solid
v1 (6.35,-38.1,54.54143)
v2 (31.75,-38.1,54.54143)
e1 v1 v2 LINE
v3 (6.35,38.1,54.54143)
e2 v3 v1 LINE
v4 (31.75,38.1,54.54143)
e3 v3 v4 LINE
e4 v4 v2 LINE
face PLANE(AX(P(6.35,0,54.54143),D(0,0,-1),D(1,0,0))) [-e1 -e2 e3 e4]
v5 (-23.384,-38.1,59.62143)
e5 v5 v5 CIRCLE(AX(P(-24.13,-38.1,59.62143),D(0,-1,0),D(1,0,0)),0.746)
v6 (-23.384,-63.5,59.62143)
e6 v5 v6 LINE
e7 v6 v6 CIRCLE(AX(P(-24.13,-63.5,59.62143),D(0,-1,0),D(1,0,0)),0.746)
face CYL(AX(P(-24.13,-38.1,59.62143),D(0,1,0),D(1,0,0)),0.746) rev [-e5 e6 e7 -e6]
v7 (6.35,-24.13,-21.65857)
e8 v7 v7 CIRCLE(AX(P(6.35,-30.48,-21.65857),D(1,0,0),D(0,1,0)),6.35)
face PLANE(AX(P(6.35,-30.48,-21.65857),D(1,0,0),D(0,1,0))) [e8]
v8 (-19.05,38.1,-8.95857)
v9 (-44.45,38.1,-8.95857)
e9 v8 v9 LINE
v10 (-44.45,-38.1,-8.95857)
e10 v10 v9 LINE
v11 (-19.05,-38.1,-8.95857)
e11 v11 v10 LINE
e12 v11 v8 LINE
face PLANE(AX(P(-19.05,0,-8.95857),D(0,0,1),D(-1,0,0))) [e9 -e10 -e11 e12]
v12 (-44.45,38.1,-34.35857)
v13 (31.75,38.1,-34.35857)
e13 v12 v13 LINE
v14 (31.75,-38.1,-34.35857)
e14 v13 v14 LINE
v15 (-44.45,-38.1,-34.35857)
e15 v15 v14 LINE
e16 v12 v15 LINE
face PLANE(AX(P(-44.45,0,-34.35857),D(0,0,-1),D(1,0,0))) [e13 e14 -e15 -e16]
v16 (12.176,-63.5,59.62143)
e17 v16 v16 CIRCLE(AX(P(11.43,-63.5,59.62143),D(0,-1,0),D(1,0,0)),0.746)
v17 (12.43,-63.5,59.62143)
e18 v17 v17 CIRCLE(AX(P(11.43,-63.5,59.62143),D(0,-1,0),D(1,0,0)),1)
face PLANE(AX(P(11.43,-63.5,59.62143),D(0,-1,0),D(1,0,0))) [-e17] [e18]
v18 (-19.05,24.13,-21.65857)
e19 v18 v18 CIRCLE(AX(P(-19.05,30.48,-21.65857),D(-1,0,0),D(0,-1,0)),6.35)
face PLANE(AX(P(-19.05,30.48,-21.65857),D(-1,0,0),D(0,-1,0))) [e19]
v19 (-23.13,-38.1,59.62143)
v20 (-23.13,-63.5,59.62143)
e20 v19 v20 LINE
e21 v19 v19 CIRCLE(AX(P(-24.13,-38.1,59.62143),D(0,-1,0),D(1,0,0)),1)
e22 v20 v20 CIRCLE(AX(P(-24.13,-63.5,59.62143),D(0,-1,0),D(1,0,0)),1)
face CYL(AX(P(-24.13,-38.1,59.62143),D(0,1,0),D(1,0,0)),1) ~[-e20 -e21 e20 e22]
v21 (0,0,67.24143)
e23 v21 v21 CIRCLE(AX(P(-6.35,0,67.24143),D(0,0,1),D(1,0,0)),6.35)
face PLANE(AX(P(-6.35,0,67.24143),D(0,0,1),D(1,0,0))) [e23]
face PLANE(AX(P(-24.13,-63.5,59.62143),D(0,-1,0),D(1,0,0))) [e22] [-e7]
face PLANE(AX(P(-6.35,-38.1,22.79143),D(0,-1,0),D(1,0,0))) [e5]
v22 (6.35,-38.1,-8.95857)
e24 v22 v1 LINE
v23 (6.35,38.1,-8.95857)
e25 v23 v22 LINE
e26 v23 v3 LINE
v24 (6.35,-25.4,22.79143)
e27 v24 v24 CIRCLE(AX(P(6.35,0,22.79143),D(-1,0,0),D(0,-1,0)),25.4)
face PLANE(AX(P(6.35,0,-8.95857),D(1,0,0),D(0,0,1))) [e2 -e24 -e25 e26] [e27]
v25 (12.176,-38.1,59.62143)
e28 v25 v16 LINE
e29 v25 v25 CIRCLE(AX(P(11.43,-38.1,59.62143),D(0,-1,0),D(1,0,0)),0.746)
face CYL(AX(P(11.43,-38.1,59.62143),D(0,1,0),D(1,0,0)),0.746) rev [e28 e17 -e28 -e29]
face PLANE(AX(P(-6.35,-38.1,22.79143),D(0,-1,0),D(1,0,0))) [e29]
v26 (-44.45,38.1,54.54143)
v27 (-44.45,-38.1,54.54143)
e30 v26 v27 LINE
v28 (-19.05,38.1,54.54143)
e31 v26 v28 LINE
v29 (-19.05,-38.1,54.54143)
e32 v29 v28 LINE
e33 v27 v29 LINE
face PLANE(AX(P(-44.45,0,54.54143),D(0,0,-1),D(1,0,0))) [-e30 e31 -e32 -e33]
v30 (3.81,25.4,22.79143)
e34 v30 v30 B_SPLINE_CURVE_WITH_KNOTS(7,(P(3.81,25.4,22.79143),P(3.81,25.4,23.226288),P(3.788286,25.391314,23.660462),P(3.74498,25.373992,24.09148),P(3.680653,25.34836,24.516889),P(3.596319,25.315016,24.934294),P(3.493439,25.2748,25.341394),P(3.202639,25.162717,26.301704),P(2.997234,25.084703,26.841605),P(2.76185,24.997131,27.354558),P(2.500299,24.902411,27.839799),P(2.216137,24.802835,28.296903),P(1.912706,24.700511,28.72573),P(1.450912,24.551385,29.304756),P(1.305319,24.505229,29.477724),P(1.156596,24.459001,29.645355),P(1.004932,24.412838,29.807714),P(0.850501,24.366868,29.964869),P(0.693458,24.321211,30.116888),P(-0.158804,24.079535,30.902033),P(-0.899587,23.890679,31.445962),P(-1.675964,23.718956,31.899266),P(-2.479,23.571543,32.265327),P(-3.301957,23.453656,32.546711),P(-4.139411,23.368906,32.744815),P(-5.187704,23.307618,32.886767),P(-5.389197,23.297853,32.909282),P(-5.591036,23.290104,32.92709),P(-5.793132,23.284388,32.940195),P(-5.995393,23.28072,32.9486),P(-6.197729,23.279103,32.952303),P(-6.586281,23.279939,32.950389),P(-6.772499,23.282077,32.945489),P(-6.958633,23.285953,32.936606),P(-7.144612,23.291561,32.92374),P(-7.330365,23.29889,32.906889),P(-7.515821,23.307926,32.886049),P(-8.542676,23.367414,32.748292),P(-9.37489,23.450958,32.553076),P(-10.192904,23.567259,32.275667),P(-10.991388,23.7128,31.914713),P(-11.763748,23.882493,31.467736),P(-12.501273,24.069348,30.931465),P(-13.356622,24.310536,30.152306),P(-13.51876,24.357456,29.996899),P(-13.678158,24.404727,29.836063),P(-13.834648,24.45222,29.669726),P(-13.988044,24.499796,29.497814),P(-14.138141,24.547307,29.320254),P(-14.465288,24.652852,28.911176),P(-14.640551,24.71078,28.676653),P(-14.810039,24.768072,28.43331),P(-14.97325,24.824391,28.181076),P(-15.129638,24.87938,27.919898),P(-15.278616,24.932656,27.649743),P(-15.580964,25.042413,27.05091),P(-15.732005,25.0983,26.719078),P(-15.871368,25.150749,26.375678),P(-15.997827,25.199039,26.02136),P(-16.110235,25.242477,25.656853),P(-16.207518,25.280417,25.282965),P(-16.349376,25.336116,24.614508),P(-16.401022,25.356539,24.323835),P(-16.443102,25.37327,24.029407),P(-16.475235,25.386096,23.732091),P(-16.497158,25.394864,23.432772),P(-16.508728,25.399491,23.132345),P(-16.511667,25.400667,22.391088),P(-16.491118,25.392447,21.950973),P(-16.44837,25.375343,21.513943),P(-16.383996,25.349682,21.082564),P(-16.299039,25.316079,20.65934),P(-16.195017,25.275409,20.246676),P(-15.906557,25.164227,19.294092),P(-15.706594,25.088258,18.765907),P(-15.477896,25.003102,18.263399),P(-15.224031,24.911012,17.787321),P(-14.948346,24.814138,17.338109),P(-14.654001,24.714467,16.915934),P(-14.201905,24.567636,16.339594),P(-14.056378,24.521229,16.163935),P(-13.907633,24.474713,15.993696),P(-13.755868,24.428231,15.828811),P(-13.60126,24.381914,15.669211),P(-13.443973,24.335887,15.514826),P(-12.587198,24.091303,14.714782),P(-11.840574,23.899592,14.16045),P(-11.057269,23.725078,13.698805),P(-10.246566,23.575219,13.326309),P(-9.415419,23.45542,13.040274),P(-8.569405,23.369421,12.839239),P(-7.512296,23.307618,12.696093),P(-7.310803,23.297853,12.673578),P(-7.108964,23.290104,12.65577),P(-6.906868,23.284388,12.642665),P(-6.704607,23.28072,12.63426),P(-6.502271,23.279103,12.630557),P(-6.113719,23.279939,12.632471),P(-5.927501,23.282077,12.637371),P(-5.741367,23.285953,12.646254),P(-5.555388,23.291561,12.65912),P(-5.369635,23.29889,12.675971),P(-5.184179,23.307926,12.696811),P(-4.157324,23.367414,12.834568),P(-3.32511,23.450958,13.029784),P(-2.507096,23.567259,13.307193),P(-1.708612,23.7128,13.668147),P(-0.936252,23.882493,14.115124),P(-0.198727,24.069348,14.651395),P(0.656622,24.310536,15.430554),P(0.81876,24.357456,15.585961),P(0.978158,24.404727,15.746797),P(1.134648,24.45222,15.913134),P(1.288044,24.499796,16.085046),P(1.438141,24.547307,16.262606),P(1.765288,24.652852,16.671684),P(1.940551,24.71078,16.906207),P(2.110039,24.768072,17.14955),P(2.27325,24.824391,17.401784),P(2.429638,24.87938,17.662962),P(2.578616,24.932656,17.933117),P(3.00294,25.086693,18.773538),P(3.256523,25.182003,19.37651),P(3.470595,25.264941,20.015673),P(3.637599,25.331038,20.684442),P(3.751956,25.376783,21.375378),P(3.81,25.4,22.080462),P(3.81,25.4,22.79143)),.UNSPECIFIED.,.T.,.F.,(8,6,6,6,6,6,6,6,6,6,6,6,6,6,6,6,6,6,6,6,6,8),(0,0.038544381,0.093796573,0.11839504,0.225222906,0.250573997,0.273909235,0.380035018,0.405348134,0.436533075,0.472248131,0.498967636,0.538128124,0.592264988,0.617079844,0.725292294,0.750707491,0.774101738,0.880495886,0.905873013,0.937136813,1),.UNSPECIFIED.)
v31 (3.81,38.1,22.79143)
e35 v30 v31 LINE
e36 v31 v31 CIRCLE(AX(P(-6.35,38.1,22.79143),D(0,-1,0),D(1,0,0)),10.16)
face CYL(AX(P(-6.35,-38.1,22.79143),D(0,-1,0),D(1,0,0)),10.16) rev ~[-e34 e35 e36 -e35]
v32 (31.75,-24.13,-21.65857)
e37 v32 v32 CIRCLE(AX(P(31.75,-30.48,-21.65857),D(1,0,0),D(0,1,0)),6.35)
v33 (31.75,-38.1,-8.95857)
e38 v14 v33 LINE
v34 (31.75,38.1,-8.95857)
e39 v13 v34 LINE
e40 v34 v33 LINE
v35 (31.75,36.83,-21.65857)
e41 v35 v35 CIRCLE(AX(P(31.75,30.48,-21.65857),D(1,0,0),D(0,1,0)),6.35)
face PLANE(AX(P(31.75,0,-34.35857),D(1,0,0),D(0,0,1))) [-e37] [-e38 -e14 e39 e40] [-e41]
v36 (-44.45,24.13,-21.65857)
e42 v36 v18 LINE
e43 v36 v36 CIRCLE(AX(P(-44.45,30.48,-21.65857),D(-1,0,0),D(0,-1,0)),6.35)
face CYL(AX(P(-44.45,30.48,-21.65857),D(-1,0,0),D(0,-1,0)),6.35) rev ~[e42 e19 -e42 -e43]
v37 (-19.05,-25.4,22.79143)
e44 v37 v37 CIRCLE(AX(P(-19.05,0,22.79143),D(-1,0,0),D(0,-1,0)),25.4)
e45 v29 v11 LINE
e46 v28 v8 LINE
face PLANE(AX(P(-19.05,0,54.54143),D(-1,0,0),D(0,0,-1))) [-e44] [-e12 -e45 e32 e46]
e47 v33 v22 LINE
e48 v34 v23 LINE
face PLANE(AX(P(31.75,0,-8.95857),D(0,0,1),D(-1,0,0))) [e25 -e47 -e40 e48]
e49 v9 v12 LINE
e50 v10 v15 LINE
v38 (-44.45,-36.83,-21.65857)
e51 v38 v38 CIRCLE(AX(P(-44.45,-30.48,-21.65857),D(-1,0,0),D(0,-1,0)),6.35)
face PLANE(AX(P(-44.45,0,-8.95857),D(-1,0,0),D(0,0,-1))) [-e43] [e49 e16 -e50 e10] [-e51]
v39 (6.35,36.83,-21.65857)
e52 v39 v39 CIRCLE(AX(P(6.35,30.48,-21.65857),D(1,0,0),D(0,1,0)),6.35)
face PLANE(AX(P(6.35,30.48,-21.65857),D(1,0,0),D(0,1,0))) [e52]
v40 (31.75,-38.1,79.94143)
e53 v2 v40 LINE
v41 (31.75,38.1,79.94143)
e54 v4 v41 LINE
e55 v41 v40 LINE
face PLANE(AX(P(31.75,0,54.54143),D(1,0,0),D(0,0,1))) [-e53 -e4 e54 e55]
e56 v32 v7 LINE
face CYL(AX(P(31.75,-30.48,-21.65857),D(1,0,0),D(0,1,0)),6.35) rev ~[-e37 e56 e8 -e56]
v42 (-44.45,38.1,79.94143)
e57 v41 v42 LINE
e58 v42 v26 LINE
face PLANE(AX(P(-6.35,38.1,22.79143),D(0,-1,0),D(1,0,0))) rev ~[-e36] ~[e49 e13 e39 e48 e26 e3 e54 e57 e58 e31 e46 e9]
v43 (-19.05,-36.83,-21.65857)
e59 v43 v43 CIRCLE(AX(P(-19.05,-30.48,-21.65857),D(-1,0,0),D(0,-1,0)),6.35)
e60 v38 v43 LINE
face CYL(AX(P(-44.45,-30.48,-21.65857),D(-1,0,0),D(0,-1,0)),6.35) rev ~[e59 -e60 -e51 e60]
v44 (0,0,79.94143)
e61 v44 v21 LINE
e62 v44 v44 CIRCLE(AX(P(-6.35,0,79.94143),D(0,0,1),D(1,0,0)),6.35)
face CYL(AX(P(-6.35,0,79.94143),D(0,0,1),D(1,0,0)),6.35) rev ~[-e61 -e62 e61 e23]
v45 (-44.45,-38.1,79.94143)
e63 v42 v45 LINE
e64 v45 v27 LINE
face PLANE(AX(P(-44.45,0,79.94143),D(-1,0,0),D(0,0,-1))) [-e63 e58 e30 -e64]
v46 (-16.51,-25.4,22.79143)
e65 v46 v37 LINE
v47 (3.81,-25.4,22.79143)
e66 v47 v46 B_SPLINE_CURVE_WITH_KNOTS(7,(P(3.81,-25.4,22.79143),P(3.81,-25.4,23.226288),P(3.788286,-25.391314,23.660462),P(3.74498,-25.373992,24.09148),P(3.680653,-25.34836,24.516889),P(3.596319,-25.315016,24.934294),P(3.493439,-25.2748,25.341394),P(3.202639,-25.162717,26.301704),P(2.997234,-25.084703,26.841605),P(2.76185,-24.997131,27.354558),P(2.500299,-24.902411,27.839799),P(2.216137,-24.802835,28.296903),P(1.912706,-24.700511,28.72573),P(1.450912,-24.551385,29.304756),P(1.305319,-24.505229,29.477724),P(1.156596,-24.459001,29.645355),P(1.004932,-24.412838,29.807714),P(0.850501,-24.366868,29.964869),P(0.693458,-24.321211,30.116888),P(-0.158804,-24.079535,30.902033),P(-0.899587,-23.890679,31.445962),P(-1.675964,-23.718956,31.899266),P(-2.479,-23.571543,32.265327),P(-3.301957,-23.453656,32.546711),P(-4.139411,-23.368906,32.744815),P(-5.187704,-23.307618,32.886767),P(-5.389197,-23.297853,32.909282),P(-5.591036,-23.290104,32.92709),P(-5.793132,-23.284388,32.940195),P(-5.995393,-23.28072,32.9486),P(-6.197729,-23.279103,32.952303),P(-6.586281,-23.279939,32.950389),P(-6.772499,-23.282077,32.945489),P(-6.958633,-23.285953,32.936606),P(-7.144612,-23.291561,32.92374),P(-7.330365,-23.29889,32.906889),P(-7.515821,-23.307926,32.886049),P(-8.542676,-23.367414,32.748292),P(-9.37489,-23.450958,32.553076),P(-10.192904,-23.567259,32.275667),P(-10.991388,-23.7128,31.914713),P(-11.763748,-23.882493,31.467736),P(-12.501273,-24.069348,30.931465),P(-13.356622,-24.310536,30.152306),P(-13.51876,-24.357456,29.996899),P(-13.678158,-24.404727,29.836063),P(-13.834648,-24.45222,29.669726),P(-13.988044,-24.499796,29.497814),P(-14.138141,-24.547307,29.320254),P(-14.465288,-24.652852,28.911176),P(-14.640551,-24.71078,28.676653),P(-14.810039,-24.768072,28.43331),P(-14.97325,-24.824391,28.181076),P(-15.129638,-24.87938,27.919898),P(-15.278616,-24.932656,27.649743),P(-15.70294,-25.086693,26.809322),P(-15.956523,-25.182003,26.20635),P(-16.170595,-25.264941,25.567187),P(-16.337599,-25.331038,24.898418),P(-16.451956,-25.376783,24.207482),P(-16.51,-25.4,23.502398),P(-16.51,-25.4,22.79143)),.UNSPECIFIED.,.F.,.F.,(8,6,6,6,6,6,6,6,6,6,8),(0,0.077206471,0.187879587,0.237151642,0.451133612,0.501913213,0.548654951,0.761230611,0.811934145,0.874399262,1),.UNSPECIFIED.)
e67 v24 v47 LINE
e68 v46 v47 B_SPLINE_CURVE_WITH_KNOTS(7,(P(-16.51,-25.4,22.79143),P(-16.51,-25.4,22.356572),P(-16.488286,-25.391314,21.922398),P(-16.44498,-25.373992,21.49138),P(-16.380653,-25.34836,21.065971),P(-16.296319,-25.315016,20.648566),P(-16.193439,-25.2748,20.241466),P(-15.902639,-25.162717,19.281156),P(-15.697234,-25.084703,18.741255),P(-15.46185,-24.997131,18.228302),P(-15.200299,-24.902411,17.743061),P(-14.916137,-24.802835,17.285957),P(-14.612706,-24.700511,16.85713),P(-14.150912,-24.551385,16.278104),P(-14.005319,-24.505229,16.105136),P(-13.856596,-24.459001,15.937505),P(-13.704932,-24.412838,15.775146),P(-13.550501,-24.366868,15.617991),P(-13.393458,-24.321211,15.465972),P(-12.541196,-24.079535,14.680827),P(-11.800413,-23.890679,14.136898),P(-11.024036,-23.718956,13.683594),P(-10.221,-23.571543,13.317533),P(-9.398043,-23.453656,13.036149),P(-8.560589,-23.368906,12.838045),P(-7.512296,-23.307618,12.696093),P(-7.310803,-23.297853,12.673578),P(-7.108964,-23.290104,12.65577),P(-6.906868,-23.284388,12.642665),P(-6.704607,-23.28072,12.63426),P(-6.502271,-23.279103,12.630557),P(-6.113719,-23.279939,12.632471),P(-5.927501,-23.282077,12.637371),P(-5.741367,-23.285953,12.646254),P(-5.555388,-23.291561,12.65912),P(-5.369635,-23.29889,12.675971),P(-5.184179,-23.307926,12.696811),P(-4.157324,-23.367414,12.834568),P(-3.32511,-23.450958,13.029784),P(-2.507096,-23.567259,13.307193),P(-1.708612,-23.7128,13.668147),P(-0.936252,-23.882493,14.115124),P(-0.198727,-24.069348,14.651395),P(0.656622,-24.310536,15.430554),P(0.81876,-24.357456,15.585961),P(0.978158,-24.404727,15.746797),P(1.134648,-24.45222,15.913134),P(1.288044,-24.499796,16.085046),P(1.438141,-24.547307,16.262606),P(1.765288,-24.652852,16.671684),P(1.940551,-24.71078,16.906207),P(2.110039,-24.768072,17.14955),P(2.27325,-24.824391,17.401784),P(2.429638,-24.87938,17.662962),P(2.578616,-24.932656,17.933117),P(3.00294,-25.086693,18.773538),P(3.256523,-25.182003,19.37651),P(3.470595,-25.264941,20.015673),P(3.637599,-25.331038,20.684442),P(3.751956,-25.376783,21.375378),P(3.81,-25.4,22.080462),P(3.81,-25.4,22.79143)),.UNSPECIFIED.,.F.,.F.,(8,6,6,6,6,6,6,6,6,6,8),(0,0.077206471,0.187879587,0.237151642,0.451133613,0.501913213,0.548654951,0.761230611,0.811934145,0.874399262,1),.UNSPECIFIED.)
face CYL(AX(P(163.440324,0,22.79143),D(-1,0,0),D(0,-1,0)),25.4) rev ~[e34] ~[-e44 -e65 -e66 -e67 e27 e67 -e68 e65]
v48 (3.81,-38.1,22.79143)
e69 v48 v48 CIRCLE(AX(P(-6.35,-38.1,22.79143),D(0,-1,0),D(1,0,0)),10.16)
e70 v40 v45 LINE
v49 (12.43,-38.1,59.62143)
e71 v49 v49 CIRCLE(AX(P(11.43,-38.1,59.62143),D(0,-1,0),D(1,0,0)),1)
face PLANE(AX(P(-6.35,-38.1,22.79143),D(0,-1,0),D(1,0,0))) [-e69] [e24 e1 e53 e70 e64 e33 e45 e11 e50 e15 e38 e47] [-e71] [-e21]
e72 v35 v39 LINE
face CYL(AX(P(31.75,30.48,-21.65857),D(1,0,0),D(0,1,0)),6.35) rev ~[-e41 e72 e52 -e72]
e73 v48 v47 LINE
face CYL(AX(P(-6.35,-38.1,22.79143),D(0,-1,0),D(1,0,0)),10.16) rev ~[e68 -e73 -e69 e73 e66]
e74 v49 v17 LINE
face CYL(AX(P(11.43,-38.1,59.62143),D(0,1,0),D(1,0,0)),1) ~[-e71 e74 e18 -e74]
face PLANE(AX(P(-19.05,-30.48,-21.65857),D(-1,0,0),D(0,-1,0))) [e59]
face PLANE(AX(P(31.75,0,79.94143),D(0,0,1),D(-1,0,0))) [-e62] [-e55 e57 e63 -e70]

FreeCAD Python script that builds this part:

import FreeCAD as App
import Part
import Sketcher

V = App.Vector
Q = App.Units.Quantity


def add_polygon(sketch, points):
    """Adds a closed chain of lines whose ends are joined by coincident constraints."""
    first, n = sketch.GeometryCount, len(points)
    for a, b in zip(points, points[1:] + points[:1]):
        sketch.addGeometry(Part.LineSegment(App.Vector(*a, 0), App.Vector(*b, 0)), False)
    for i in range(n):
        sketch.addConstraint(Sketcher.Constraint("Coincident", first + i, 2, first + (i + 1) % n, 1))

doc = App.newDocument("Part")
body = doc.addObject("PartDesign::Body", "Body")

sketch1 = body.newObject("Sketcher::SketchObject", "Sketch")
sketch1.AttachmentSupport = (doc.getObject("XZ_Plane"), [""])
sketch1.MapMode = "FlatFace"
add_polygon(sketch1, [(-44.45, -8.95857), (-44.45, -34.35857), (31.75, -34.35857), (31.75, -8.95857), (6.35, -8.95857), (6.35, 54.54143), (31.75, 54.54143), (31.75, 79.94143), (-44.45, 79.94143), (-44.45, 54.54143), (-19.05, 54.54143), (-19.05, -8.95857)])
sketch1.addConstraint([
    Sketcher.Constraint("Vertical", 0),
    Sketcher.Constraint("Horizontal", 1),
    Sketcher.Constraint("Vertical", 2),
    Sketcher.Constraint("Horizontal", 3),
    Sketcher.Constraint("Vertical", 4),
    Sketcher.Constraint("Horizontal", 5),
    Sketcher.Constraint("Vertical", 6),
    Sketcher.Constraint("Horizontal", 7),
    Sketcher.Constraint("Vertical", 8),
    Sketcher.Constraint("Horizontal", 9),
    Sketcher.Constraint("Vertical", 10),
    Sketcher.Constraint("Horizontal", 11),
    Sketcher.Constraint("Horizontal", 5, 2, 8, 2),
    Sketcher.Constraint("Horizontal", 3, 2, 10, 2),
    Sketcher.Constraint("Vertical", 2, 2, 5, 2),
    Sketcher.Constraint("Vertical", 0, 2, 7, 2),
    Sketcher.Constraint("Equal", 5, 9),
    Sketcher.Constraint("Equal", 11, 0),
    Sketcher.Constraint("Equal", 2, 6),
    Sketcher.Constraint("DistanceX", 1, 1, 1, 2, Q("3 in")),
    Sketcher.Constraint("DistanceX", 3, 2, 3, 1, Q("1 in")),
    Sketcher.Constraint("DistanceY", 4, 1, 4, 2, Q("2.5 in")),
    Sketcher.Constraint("DistanceX", 0, 2, -1, 1, Q("1.75 in")),
    Sketcher.Constraint("DistanceY", 0, 2, -1, 1, Q("34.35857 mm")),
])
pad1 = body.newObject("PartDesign::Pad", "Pad")
pad1.Profile = sketch1
pad1.Length = Q("3 in")
pad1.Midplane = True

sketch2 = body.newObject("Sketcher::SketchObject", "Sketch001")
sketch2.AttachmentSupport = (doc.getObject("YZ_Plane"), [""])
sketch2.MapMode = "FlatFace"
sketch2.AttachmentOffset = App.Placement(V(0, 0, 0.25 * 25.4), App.Rotation())
sketch2.addGeometry(Part.Circle(V(0, 22.79143, 0), V(0, 0, 1), 25.4), False)
sketch2.addConstraint([
    Sketcher.Constraint("PointOnObject", 0, 3, -2),
    Sketcher.Constraint("Diameter", 0, Q("2 in")),
    Sketcher.Constraint("DistanceY", -1, 1, 0, 3, Q("22.79143 mm")),
])
doc.recompute()
hole = body.newObject("PartDesign::Hole", "Hole")
hole.Profile = sketch2
hole.ThreadType = "None"
hole.Diameter = Q("2 in")
hole.DepthType = "ThroughAll"

sketch3 = body.newObject("Sketcher::SketchObject", "Sketch002")
sketch3.AttachmentSupport = (doc.getObject("YZ_Plane"), [""])
sketch3.MapMode = "FlatFace"
sketch3.AttachmentOffset = App.Placement(V(0, 0, 1.25 * 25.4), App.Rotation())
sketch3.addGeometry([
    Part.Circle(V(-30.48, -21.65857, 0), V(0, 0, 1), 6.35),
    Part.Circle(V(30.48, -21.65857, 0), V(0, 0, 1), 6.35),
], False)
sketch3.addConstraint([
    Sketcher.Constraint("Equal", 0, 1),
    Sketcher.Constraint("Symmetric", 0, 3, 1, 3, -2),
    Sketcher.Constraint("Diameter", 0, Q("0.5 in")),
    Sketcher.Constraint("DistanceX", 0, 3, -1, 1, Q("1.2 in")),
    Sketcher.Constraint("DistanceY", 0, 3, -1, 1, Q("21.65857 mm")),
])
pocket1 = body.newObject("PartDesign::Pocket", "Pocket")
pocket1.Profile = sketch3
pocket1.Length = Q("1 in")

sketch4 = body.newObject("Sketcher::SketchObject", "Sketch003")
sketch4.AttachmentSupport = (doc.getObject("YZ_Plane"), [""])
sketch4.MapMode = "FlatFace"
sketch4.AttachmentOffset = App.Placement(V(0, 0, -1.75 * 25.4), App.Rotation())
sketch4.addGeometry([
    Part.Circle(V(-30.48, -21.65857, 0), V(0, 0, 1), 6.35),
    Part.Circle(V(30.48, -21.65857, 0), V(0, 0, 1), 6.35),
], False)
sketch4.addConstraint([
    Sketcher.Constraint("Equal", 0, 1),
    Sketcher.Constraint("Symmetric", 0, 3, 1, 3, -2),
    Sketcher.Constraint("Diameter", 0, Q("0.5 in")),
    Sketcher.Constraint("DistanceX", 0, 3, -1, 1, Q("1.2 in")),
    Sketcher.Constraint("DistanceY", 0, 3, -1, 1, Q("21.65857 mm")),
])
pocket2 = body.newObject("PartDesign::Pocket", "Pocket001")
pocket2.Profile = sketch4
pocket2.Length = Q("1 in")
pocket2.Reversed = True

sketch5 = body.newObject("Sketcher::SketchObject", "Sketch004")
sketch5.AttachmentSupport = (doc.getObject("XY_Plane"), [""])
sketch5.MapMode = "FlatFace"
sketch5.AttachmentOffset = App.Placement(V(0, 0, 79.94143), App.Rotation())
sketch5.addGeometry(Part.Circle(V(-6.35, 0, 0), V(0, 0, 1), 6.35), False)
sketch5.addConstraint([
    Sketcher.Constraint("PointOnObject", 0, 3, -1),
    Sketcher.Constraint("Diameter", 0, Q("0.5 in")),
    Sketcher.Constraint("DistanceX", 0, 3, -1, 1, Q("0.25 in")),
])
pocket3 = body.newObject("PartDesign::Pocket", "Pocket002")
pocket3.Profile = sketch5
pocket3.Length = Q("0.5 in")

sketch6 = body.newObject("Sketcher::SketchObject", "Sketch005")
sketch6.AttachmentSupport = (doc.getObject("XZ_Plane"), [""])
sketch6.MapMode = "FlatFace"
sketch6.AttachmentOffset = App.Placement(V(0, 0, 1.5 * 25.4), App.Rotation())
sketch6.addGeometry([
    Part.Circle(V(11.43, 59.62143, 0), V(0, 0, 1), 1),
    Part.Circle(V(11.43, 59.62143, 0), V(0, 0, 1), 0.746),
    Part.Circle(V(-24.13, 59.62143, 0), V(0, 0, 1), 1),
    Part.Circle(V(-24.13, 59.62143, 0), V(0, 0, 1), 0.746),
], False)
sketch6.addConstraint([
    Sketcher.Constraint("Coincident", 1, 3, 0, 3),
    Sketcher.Constraint("Coincident", 3, 3, 2, 3),
    Sketcher.Constraint("Equal", 0, 2),
    Sketcher.Constraint("Equal", 1, 3),
    Sketcher.Constraint("Horizontal", 1, 3, 2, 3),
    Sketcher.Constraint("DistanceX", 2, 3, 0, 3, Q("1.4 in")),
    Sketcher.Constraint("Diameter", 0, Q("2 mm")),
    Sketcher.Constraint("Diameter", 1, Q("1.492 mm")),
    Sketcher.Constraint("DistanceX", -1, 1, 0, 3, Q("0.45 in")),
    Sketcher.Constraint("DistanceY", -1, 1, 0, 3, Q("59.62143 mm")),
])
pad2 = body.newObject("PartDesign::Pad", "Pad001")
pad2.Profile = sketch6
pad2.Length = Q("1 in")

sketch7 = body.newObject("Sketcher::SketchObject", "Sketch006")
sketch7.AttachmentSupport = (doc.getObject("XZ_Plane"), [""])
sketch7.MapMode = "FlatFace"
sketch7.AttachmentOffset = App.Placement(V(0, 0, 1.5 * 25.4), App.Rotation())
sketch7.addGeometry(Part.Circle(V(-6.35, 22.79143, 0), V(0, 0, 1), 10.16), False)
sketch7.addConstraint([
    Sketcher.Constraint("Diameter", 0, Q("0.8 in")),
    Sketcher.Constraint("DistanceX", 0, 3, -1, 1, Q("0.25 in")),
    Sketcher.Constraint("DistanceY", -1, 1, 0, 3, Q("22.79143 mm")),
])
pocket4 = body.newObject("PartDesign::Pocket", "Pocket003")
pocket4.Profile = sketch7
pocket4.Length = Q("4 in")

doc.recompute()
